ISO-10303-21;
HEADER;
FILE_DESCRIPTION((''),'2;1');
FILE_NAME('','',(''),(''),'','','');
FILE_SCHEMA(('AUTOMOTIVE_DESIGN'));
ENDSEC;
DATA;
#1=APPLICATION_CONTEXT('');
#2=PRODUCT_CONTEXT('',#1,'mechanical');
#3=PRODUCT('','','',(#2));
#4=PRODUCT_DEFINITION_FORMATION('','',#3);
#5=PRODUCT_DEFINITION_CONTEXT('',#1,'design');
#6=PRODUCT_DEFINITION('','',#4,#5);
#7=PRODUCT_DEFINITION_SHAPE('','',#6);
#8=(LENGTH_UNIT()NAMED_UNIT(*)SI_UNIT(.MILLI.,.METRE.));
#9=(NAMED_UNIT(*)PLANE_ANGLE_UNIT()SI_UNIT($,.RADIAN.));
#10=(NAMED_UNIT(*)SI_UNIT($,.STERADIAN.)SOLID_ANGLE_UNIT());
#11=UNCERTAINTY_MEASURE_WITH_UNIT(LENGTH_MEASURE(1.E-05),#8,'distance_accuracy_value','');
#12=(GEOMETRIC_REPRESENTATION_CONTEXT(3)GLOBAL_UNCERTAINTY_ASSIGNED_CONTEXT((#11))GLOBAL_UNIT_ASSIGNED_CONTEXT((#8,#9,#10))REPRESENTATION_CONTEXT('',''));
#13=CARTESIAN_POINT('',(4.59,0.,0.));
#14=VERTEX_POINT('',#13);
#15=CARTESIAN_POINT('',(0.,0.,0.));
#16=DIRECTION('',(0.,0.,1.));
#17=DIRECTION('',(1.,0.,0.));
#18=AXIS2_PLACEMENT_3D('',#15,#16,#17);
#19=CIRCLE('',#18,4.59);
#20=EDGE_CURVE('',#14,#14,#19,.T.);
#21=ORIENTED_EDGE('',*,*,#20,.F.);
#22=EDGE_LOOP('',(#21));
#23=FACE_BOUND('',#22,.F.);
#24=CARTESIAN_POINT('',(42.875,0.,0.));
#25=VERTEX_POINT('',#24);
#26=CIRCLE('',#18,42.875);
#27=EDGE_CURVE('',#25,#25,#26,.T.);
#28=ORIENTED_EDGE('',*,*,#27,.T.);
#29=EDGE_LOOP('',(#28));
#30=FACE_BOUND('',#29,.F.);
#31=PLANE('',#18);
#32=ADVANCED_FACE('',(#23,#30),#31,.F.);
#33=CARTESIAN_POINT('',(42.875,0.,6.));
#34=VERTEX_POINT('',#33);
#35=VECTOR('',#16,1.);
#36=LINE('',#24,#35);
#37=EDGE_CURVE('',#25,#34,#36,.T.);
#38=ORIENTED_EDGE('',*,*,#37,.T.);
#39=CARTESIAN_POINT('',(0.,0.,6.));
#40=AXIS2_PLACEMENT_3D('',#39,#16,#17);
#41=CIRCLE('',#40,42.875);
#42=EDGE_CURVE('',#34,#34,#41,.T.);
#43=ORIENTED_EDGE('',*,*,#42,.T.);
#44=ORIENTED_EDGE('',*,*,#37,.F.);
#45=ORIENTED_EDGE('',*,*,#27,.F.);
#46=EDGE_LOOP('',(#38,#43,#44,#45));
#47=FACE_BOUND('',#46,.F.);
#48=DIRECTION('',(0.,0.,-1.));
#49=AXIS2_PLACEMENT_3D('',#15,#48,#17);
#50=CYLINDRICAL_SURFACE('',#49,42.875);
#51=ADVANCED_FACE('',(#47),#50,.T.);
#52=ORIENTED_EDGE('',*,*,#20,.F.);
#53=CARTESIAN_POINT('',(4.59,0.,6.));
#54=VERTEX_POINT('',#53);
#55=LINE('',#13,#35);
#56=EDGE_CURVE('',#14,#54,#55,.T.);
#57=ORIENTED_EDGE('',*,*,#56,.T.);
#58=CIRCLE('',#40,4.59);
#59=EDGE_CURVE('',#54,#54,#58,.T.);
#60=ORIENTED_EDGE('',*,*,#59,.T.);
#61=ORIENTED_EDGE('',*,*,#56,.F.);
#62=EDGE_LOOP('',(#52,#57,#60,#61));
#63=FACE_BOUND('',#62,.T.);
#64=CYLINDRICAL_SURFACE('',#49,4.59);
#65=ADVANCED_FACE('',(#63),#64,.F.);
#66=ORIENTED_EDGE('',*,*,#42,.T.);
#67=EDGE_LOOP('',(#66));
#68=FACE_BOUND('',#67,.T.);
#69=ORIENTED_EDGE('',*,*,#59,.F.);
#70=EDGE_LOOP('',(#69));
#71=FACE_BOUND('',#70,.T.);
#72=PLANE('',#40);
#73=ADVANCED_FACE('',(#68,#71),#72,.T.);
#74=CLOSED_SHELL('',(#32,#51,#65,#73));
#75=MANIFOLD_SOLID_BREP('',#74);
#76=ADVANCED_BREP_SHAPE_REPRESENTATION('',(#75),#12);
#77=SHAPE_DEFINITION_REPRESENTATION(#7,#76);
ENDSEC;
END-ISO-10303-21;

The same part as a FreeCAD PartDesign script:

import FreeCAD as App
import Part
import Sketcher

doc = App.newDocument("Part")
params = doc.addObject("Spreadsheet::Sheet", "Params")
for row, (alias, value) in enumerate([
    ("sketch1_diameter", "85.75 mm"),
    ("sketch1_diameter2", "9.18 mm"),
    ("pad1_length", "6 mm"),
], start=1):
    params.set(f"A{row}", alias)
    params.set(f"B{row}", "=" + value)
    params.setAlias(f"B{row}", alias)

body = doc.addObject("PartDesign::Body", "Body")

sketch1 = body.newObject("Sketcher::SketchObject", "Sketch")
sketch1.AttachmentSupport = (doc.getObject("XY_Plane"), [""])
sketch1.MapMode = "FlatFace"
sketch1.addGeometry([
    Part.Circle(App.Vector(0, 0, 0), App.Vector(0, 0, 1), 42.9),
    Part.Circle(App.Vector(0, 0, 0), App.Vector(0, 0, 1), 4.6),
], False)
sketch1.addConstraint([
    Sketcher.Constraint("Coincident", 0, 3, -1, 1),
    Sketcher.Constraint("Coincident", 1, 3, -1, 1),
    Sketcher.Constraint("Diameter", 0, 85.75),
    Sketcher.Constraint("Diameter", 1, 9.18),
])
sketch1.setExpression("Constraints[2]", "Params.sketch1_diameter")
sketch1.setExpression("Constraints[3]", "Params.sketch1_diameter2")
pad1 = body.newObject("PartDesign::Pad", "Pad")
pad1.Profile = sketch1
pad1.setExpression("Length", "Params.pad1_length")

doc.recompute()
